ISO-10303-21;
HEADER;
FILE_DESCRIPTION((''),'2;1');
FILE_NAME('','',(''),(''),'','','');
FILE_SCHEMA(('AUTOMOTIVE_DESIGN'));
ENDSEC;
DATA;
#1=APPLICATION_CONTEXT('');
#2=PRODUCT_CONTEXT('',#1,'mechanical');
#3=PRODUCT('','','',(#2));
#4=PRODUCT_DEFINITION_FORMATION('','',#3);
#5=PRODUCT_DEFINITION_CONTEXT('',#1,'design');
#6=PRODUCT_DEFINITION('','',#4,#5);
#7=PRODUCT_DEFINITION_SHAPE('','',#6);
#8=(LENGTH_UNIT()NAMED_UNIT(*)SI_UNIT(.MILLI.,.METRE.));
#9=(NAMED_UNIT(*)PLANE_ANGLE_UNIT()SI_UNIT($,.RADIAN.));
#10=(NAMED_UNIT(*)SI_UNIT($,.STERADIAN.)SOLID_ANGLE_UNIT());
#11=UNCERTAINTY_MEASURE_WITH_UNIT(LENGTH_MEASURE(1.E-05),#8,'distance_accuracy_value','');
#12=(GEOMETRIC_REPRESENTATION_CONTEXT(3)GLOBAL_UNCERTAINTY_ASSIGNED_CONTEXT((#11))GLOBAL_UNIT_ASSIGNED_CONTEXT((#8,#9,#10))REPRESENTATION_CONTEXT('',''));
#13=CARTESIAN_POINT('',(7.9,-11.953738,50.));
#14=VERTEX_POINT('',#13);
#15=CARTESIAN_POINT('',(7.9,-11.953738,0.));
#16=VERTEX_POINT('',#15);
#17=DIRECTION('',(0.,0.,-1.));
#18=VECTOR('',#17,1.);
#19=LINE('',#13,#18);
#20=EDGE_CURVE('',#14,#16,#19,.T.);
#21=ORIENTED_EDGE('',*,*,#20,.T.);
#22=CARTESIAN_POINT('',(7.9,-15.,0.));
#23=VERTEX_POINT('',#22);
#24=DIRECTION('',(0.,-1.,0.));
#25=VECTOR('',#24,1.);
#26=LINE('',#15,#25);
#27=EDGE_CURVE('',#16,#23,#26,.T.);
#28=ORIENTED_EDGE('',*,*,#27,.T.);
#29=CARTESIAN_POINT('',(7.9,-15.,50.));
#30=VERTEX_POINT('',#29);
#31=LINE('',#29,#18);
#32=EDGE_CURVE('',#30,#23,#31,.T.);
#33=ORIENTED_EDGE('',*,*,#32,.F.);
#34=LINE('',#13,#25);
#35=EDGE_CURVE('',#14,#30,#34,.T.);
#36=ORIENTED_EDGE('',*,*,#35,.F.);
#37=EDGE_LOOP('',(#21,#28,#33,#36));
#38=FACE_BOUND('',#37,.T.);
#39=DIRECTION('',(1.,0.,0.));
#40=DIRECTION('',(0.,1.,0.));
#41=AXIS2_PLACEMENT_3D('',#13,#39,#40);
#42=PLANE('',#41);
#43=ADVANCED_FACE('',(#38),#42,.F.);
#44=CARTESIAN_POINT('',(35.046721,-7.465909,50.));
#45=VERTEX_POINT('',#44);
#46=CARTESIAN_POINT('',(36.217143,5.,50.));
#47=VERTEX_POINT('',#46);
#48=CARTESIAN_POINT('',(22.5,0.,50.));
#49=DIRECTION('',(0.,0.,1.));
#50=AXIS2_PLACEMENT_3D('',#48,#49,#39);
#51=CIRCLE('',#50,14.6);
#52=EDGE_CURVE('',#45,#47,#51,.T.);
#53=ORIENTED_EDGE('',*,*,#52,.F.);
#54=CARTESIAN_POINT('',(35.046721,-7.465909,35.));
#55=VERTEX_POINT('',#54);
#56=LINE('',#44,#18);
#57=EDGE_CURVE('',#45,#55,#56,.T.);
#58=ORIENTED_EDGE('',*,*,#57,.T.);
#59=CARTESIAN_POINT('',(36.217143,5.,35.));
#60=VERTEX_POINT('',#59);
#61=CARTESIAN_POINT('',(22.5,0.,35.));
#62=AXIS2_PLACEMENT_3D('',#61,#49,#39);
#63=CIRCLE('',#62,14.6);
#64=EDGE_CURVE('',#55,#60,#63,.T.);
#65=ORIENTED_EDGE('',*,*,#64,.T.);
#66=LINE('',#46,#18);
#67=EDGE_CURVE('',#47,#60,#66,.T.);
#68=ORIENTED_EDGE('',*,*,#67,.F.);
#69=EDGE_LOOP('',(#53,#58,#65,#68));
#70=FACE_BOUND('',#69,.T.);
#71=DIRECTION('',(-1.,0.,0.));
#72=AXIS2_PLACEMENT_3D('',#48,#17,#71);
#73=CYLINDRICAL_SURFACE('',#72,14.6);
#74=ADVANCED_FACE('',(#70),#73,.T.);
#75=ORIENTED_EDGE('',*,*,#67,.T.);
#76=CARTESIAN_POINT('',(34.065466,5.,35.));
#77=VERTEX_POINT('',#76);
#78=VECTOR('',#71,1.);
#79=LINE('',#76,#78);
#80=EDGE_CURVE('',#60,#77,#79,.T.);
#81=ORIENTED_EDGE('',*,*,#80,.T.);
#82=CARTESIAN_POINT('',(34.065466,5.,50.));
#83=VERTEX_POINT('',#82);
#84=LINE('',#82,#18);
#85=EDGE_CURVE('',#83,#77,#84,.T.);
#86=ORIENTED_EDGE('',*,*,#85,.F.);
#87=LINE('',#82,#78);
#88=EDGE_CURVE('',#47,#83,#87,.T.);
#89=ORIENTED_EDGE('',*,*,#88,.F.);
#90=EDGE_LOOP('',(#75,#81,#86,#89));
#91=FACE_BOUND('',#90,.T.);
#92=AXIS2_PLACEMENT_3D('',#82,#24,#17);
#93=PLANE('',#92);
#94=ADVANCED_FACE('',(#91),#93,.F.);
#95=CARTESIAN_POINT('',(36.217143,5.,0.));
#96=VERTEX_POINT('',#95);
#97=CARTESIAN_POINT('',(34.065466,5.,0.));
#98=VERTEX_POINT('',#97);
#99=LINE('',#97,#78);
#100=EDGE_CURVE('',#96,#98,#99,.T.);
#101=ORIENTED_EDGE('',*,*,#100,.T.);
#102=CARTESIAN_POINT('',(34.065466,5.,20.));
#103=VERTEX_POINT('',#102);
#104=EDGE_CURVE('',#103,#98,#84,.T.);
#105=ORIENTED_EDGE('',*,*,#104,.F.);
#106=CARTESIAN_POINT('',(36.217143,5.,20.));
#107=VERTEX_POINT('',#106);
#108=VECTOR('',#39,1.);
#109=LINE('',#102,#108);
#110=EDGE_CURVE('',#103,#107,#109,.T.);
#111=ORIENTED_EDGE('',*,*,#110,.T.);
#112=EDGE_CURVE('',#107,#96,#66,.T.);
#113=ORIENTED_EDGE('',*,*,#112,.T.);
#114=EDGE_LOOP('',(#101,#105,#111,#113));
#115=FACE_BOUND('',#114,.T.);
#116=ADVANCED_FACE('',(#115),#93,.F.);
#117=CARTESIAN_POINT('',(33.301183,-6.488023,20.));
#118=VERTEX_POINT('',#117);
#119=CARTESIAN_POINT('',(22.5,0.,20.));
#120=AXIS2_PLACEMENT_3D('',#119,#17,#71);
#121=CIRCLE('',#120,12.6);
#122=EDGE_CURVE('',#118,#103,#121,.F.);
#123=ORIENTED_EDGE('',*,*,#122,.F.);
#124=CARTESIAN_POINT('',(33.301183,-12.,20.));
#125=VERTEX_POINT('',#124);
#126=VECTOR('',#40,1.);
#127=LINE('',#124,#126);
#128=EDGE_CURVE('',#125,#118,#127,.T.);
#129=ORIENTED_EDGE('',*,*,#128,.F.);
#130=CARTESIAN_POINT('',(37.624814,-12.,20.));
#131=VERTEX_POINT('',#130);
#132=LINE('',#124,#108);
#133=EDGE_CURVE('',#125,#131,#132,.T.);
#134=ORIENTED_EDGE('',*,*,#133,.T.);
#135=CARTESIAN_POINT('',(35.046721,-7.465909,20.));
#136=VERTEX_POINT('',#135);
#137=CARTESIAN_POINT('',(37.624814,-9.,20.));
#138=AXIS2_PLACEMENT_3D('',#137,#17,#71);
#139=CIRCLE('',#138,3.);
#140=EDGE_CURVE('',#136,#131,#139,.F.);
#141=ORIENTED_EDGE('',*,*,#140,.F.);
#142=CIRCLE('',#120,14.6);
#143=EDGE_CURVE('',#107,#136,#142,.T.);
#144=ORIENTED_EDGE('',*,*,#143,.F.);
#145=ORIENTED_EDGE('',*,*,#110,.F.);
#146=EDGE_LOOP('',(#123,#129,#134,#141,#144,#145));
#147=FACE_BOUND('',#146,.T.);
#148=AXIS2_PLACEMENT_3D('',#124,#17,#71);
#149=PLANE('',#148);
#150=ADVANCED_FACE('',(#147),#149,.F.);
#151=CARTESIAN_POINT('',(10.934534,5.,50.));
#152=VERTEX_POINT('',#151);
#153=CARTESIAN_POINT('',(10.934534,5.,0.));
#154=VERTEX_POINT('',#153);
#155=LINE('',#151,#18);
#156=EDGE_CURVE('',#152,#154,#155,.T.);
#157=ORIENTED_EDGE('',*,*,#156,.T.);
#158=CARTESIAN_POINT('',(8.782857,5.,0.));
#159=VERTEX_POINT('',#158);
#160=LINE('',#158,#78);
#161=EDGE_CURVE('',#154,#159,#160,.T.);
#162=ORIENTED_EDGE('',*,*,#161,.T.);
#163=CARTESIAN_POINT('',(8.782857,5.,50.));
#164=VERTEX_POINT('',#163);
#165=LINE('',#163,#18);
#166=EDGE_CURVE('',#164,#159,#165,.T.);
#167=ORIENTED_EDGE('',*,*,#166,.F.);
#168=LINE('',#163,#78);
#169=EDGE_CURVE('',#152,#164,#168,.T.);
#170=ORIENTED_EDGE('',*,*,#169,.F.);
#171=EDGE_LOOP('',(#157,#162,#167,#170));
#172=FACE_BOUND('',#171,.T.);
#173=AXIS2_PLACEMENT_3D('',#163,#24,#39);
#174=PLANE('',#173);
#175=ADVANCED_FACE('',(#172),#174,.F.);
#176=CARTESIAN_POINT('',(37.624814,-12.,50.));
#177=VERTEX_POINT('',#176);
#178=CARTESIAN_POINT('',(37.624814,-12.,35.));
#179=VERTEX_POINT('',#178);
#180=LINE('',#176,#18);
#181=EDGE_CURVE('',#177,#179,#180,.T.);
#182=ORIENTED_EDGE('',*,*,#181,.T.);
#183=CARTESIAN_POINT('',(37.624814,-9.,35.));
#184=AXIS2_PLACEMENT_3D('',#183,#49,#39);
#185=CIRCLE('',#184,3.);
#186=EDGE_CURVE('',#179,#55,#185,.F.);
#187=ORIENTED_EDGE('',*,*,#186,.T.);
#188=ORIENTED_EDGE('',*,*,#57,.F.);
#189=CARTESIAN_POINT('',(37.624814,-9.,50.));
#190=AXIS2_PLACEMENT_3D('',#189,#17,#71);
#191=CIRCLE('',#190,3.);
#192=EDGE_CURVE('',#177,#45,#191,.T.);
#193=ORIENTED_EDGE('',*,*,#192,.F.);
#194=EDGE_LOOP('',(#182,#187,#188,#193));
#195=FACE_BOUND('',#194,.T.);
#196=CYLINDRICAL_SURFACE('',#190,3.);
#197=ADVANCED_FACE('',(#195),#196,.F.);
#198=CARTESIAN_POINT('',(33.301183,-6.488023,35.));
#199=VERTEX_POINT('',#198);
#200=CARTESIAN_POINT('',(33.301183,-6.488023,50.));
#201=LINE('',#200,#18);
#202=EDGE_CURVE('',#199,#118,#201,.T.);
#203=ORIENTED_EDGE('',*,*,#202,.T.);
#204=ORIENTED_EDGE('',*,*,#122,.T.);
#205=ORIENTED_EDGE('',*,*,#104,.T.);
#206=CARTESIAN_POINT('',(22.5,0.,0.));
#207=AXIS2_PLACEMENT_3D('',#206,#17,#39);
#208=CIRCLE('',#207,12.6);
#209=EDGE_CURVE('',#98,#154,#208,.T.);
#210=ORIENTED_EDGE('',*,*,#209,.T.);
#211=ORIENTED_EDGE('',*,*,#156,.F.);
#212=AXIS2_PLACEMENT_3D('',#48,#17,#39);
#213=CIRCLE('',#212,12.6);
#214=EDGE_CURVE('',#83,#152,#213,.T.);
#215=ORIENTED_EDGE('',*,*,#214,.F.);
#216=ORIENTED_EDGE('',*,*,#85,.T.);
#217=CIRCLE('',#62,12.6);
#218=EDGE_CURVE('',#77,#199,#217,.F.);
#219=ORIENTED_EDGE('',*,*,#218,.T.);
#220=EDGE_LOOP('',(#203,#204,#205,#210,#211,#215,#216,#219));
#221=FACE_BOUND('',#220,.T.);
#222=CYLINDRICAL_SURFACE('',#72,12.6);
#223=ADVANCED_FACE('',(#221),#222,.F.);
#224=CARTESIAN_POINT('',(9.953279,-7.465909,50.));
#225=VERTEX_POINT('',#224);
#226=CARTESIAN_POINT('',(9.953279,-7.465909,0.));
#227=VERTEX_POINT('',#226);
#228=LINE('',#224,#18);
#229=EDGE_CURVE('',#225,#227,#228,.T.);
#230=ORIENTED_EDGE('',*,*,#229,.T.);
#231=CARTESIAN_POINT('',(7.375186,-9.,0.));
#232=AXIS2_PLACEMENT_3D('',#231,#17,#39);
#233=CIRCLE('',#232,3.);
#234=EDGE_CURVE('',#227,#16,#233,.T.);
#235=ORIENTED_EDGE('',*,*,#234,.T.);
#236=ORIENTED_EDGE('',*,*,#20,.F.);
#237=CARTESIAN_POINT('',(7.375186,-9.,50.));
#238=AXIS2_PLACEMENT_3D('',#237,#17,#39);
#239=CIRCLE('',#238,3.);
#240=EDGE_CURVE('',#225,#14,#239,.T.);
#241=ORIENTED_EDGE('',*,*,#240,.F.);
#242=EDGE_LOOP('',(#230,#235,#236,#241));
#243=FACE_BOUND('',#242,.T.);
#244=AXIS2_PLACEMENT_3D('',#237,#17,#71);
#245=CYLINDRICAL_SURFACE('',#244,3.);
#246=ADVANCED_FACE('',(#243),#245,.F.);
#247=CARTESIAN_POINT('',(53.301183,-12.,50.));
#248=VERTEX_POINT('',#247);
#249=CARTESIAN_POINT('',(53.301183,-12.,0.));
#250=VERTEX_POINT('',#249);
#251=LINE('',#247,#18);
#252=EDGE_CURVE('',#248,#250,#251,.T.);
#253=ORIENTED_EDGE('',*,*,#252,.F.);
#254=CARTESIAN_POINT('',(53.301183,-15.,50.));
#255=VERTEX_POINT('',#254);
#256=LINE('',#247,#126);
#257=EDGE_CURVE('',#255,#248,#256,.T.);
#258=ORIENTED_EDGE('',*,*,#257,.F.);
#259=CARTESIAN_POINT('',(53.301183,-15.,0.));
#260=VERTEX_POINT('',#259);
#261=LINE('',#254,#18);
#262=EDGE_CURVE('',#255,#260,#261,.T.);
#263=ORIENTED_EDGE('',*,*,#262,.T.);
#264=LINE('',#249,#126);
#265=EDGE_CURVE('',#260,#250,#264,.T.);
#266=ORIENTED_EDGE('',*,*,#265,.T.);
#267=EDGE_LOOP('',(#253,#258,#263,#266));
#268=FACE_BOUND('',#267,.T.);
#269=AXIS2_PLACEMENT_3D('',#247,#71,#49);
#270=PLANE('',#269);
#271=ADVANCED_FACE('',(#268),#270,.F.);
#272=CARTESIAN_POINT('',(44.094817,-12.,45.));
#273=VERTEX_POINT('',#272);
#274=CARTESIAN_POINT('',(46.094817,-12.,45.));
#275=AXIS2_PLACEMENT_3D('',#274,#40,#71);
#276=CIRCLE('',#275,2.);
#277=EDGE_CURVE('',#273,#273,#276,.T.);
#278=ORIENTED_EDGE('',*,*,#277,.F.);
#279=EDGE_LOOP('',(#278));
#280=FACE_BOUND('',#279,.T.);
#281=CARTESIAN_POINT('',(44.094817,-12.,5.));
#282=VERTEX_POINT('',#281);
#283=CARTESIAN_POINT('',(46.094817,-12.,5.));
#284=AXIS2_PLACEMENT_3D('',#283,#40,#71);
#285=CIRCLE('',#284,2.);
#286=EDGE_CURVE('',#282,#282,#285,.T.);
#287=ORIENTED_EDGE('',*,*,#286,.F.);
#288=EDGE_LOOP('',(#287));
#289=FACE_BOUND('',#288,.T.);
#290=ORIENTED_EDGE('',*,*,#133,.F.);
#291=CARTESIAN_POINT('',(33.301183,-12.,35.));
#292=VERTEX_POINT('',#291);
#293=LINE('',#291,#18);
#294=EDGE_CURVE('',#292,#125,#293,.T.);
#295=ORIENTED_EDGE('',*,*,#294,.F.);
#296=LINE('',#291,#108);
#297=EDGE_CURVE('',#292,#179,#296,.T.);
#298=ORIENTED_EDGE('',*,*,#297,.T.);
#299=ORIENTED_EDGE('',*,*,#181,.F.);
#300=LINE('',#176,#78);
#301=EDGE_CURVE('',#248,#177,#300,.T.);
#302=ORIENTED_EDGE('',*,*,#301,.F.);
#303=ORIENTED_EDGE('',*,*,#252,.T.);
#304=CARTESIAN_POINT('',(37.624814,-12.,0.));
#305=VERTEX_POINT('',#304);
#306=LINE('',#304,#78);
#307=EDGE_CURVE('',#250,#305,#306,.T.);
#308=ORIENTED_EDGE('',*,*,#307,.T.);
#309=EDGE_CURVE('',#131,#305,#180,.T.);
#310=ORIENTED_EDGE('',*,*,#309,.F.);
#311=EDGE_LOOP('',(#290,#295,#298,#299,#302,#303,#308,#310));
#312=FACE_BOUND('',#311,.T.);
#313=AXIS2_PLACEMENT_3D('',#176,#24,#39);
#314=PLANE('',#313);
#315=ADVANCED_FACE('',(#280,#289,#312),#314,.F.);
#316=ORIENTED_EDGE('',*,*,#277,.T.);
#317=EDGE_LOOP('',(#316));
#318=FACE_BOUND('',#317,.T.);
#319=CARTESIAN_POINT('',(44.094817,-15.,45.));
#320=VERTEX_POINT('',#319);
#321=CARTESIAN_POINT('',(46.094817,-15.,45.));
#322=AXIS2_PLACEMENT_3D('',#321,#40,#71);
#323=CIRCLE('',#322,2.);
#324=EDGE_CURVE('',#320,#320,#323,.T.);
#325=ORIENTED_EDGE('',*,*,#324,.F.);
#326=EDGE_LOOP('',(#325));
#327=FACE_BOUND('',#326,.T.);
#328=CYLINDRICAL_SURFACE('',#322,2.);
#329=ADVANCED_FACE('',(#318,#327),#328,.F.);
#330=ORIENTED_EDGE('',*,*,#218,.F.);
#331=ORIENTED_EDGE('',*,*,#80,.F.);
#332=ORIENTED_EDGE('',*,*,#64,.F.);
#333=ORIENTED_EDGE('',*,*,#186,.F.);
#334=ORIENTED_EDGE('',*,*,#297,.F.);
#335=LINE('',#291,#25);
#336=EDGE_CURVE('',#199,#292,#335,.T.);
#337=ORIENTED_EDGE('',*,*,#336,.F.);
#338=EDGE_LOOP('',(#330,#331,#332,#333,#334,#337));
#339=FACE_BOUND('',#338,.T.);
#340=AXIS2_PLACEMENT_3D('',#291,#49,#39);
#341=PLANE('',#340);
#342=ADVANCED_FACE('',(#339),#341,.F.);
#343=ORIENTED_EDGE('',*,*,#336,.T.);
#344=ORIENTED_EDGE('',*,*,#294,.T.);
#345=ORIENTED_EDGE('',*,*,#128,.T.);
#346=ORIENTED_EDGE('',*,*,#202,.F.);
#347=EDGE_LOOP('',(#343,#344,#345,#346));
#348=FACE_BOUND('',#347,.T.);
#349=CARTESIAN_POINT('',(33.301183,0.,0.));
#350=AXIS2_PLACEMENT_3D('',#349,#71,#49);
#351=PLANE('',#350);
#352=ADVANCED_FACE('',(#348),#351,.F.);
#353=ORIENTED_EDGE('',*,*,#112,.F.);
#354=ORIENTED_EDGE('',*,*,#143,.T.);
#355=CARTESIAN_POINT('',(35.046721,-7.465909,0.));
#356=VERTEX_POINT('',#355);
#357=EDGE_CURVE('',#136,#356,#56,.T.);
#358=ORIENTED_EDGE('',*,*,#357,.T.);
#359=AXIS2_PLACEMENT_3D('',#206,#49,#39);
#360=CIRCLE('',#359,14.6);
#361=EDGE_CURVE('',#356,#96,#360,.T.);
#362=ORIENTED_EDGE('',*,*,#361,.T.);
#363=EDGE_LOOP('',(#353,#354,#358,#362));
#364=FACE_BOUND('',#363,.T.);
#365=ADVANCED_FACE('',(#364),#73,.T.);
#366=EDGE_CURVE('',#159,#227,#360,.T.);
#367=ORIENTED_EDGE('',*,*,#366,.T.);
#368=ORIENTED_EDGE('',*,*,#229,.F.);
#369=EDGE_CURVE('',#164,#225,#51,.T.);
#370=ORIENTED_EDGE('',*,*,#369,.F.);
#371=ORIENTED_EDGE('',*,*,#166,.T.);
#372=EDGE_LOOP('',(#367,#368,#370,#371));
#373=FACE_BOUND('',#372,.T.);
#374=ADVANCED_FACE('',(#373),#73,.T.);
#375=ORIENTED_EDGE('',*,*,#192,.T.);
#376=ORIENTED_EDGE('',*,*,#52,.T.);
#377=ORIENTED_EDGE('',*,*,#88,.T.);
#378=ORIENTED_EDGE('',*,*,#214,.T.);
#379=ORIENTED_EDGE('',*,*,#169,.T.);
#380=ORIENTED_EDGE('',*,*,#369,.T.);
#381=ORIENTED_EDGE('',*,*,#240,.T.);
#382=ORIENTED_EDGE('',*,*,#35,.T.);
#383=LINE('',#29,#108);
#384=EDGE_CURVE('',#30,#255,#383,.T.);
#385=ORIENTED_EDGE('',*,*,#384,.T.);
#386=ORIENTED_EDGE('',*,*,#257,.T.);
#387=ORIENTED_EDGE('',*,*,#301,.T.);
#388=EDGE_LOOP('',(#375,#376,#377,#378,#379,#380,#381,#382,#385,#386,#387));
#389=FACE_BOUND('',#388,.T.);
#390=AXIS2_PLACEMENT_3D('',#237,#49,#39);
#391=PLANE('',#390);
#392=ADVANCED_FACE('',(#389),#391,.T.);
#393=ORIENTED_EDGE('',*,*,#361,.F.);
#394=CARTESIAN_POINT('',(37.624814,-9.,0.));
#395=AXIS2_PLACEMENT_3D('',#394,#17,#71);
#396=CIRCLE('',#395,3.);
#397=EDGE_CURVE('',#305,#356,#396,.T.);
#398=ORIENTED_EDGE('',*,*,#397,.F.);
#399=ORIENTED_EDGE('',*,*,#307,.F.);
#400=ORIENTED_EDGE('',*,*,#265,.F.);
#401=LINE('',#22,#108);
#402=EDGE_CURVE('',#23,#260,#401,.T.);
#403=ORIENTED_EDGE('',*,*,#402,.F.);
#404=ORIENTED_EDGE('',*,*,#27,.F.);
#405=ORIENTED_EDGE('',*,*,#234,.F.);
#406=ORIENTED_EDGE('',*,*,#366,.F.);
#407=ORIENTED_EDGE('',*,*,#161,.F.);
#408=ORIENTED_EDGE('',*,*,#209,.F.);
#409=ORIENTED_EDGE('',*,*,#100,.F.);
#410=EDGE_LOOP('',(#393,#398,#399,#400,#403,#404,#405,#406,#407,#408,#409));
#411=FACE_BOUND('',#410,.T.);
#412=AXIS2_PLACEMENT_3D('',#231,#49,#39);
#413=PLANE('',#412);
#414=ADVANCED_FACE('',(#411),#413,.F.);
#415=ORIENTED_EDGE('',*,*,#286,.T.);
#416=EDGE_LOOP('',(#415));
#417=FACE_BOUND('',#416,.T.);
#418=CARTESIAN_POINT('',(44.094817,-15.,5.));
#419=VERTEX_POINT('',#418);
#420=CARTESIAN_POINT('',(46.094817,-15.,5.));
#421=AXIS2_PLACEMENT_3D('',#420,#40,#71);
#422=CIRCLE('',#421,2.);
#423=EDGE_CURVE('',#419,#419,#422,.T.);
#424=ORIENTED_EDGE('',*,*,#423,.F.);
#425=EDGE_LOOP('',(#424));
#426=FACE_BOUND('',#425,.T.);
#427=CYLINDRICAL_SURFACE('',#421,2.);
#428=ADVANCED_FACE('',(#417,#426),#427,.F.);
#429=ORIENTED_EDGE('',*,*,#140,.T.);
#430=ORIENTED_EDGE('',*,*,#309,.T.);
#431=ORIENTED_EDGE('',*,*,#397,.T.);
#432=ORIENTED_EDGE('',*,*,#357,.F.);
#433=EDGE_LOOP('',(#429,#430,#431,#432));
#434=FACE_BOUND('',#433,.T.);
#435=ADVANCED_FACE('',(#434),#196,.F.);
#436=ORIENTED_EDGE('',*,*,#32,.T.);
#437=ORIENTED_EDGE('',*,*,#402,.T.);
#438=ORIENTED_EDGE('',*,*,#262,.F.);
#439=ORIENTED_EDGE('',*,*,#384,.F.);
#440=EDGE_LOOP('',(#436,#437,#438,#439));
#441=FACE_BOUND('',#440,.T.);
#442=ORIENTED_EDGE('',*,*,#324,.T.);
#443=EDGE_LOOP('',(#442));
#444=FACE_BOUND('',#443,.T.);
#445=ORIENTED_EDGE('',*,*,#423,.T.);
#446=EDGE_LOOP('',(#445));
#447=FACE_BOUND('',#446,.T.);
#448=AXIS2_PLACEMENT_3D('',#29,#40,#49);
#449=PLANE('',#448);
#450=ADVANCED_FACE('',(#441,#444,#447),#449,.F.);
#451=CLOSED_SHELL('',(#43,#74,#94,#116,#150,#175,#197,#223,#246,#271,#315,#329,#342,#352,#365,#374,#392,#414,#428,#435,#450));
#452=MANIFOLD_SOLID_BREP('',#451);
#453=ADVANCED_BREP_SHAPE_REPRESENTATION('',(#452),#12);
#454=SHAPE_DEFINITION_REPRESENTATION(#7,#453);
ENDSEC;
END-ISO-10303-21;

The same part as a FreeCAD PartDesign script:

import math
import FreeCAD as App
import Part
import Sketcher
Q = App.Units.Quantity

doc = App.newDocument("Part")
body = doc.addObject("PartDesign::Body", "Body")

# Sketch on XY plane
sketch1 = doc.addObject("Sketcher::SketchObject", "Sketch")
body.addObject(sketch1)
sketch1.AttachmentSupport = (doc.XY_Plane, [""])
sketch1.MapMode = "FlatFace"
sketch1.addGeometry([
    Part.LineSegment(App.Vector(36.2, 5, 0), App.Vector(34.1, 5, 0)),  # 0
    Part.ArcOfCircle(Part.Circle(App.Vector(22.5, 0, 0), App.Vector(0, 0, 1), 12.6), math.radians(157), math.radians(383)),  # 1
    Part.LineSegment(App.Vector(10.9, 5, 0), App.Vector(8.8, 5, 0)),  # 2
    Part.ArcOfCircle(Part.Circle(App.Vector(22.5, 0, 0), App.Vector(0, 0, 1), 14.6), math.radians(160), math.radians(211)),  # 3
    Part.ArcOfCircle(Part.Circle(App.Vector(7.4, -9, 0), App.Vector(0, 0, 1), 3), math.radians(-80), math.radians(31)),  # 4
    Part.LineSegment(App.Vector(7.9, -12, 0), App.Vector(7.9, -15, 0)),  # 5
    Part.LineSegment(App.Vector(7.9, -15, 0), App.Vector(53.3, -15, 0)),  # 6
    Part.LineSegment(App.Vector(53.3, -15, 0), App.Vector(53.3, -12, 0)),  # 7
    Part.LineSegment(App.Vector(53.3, -12, 0), App.Vector(37.6, -12, 0)),  # 8
    Part.ArcOfCircle(Part.Circle(App.Vector(37.6, -9, 0), App.Vector(0, 0, 1), 3), math.radians(149), math.radians(270)),  # 9
    Part.ArcOfCircle(Part.Circle(App.Vector(22.5, 0, 0), App.Vector(0, 0, 1), 14.6), math.radians(-31), math.radians(20)),  # 10
], False)
sketch1.addConstraint([
    Sketcher.Constraint("Coincident", 0, 2, 1, 2),
    Sketcher.Constraint("Coincident", 1, 1, 2, 1),
    Sketcher.Constraint("Coincident", 2, 2, 3, 1),
    Sketcher.Constraint("Tangent", 3, 2, 4, 2),
    Sketcher.Constraint("Coincident", 4, 1, 5, 1),
    Sketcher.Constraint("Coincident", 5, 2, 6, 1),
    Sketcher.Constraint("Coincident", 6, 2, 7, 1),
    Sketcher.Constraint("Coincident", 7, 2, 8, 1),
    Sketcher.Constraint("Tangent", 8, 2, 9, 2),
    Sketcher.Constraint("Tangent", 9, 1, 10, 1),
    Sketcher.Constraint("Coincident", 10, 2, 0, 1),
    Sketcher.Constraint("Horizontal", 0),
    Sketcher.Constraint("Horizontal", 2),
    Sketcher.Constraint("Vertical", 5),
    Sketcher.Constraint("Horizontal", 6),
    Sketcher.Constraint("Vertical", 7),
    Sketcher.Constraint("Horizontal", 8),
    Sketcher.Constraint("Coincident", 3, 3, 1, 3),
    Sketcher.Constraint("Coincident", 10, 3, 1, 3),
    Sketcher.Constraint("Equal", 4, 9),
    Sketcher.Constraint("Equal", 3, 10),
    Sketcher.Constraint("PointOnObject", 1, 3, -1),
    Sketcher.Constraint("Horizontal", 4, 3, 9, 3),
    Sketcher.Constraint("Horizontal", 0, 2, 1, 1),
    Sketcher.Constraint("Radius", 4, Q("3 mm")),
    Sketcher.Constraint("Radius", 1, Q("12.6 mm")),
    Sketcher.Constraint("Radius", 3, Q("14.6 mm")),
    Sketcher.Constraint("DistanceY", 7, 1, 7, 2, Q("3 mm")),
    Sketcher.Constraint("DistanceY", 4, 3, -1, 1, Q("9 mm")),
    Sketcher.Constraint("DistanceY", -1, 1, 0, 2, Q("5 mm")),
    Sketcher.Constraint("DistanceX", -1, 1, 1, 3, Q("22.5 mm")),
    Sketcher.Constraint("DistanceX", -1, 1, 4, 1, Q("7.9 mm")),
    Sketcher.Constraint("DistanceX", 8, 2, 8, 1, Q("15.676369 mm")),
])
pad1 = doc.addObject("PartDesign::Pad", "Pad")
body.addObject(pad1)
pad1.Profile = sketch1
pad1.Length = 50

# Sketch on YZ plane
sketch2 = doc.addObject("Sketcher::SketchObject", "Sketch001")
body.addObject(sketch2)
sketch2.AttachmentSupport = (doc.YZ_Plane, [""])
sketch2.MapMode = "FlatFace"
sketch2.AttachmentOffset = App.Placement(App.Vector(0, 0, 53.301183), App.Rotation())
sketch2.addGeometry([
    Part.LineSegment(App.Vector(8, 35, 0), App.Vector(-12, 35, 0)),
    Part.LineSegment(App.Vector(-12, 35, 0), App.Vector(-12, 20, 0)),
    Part.LineSegment(App.Vector(-12, 20, 0), App.Vector(8, 20, 0)),
    Part.LineSegment(App.Vector(8, 20, 0), App.Vector(8, 35, 0)),
], False)
sketch2.addConstraint([
    Sketcher.Constraint("Coincident", 0, 2, 1, 1),
    Sketcher.Constraint("Coincident", 1, 2, 2, 1),
    Sketcher.Constraint("Coincident", 2, 2, 3, 1),
    Sketcher.Constraint("Coincident", 3, 2, 0, 1),
    Sketcher.Constraint("Horizontal", 0),
    Sketcher.Constraint("Vertical", 1),
    Sketcher.Constraint("Horizontal", 2),
    Sketcher.Constraint("Vertical", 3),
    Sketcher.Constraint("DistanceY", 1, 2, 1, 1, Q("15 mm")),
    Sketcher.Constraint("DistanceX", 0, 2, -1, 1, Q("12 mm")),
    Sketcher.Constraint("DistanceY", -1, 1, 0, 2, Q("35 mm")),
    Sketcher.Constraint("DistanceX", 0, 2, 0, 1, Q("20.436302 mm")),
])
pocket1 = doc.addObject("PartDesign::Pocket", "Pocket")
body.addObject(pocket1)
pocket1.Profile = sketch2
pocket1.Length = 20

# Sketch on XZ plane
sketch3 = doc.addObject("Sketcher::SketchObject", "Sketch002")
body.addObject(sketch3)
sketch3.AttachmentSupport = (doc.XZ_Plane, [""])
sketch3.MapMode = "FlatFace"
sketch3.AttachmentOffset = App.Placement(App.Vector(0, 0, 12), App.Rotation())
sketch3.addGeometry([
    Part.Circle(App.Vector(46.1, 45, 0), App.Vector(0, 0, 1), 2),
    Part.Circle(App.Vector(46.1, 5, 0), App.Vector(0, 0, 1), 2),
], False)
sketch3.addConstraint([
    Sketcher.Constraint("Equal", 0, 1),
    Sketcher.Constraint("Vertical", 0, 3, 1, 3),
    Sketcher.Constraint("Diameter", 0, Q("4 mm")),
    Sketcher.Constraint("DistanceY", -1, 1, 0, 3, Q("45 mm")),
    Sketcher.Constraint("DistanceY", -1, 1, 1, 3, Q("5 mm")),
    Sketcher.Constraint("DistanceX", -1, 1, 0, 3, Q("46.094817 mm")),
])
pocket2 = doc.addObject("PartDesign::Pocket", "Pocket001")
body.addObject(pocket2)
pocket2.Profile = sketch3
pocket2.Type = "ThroughAll"
pocket2.Reversed = True

doc.recompute()
